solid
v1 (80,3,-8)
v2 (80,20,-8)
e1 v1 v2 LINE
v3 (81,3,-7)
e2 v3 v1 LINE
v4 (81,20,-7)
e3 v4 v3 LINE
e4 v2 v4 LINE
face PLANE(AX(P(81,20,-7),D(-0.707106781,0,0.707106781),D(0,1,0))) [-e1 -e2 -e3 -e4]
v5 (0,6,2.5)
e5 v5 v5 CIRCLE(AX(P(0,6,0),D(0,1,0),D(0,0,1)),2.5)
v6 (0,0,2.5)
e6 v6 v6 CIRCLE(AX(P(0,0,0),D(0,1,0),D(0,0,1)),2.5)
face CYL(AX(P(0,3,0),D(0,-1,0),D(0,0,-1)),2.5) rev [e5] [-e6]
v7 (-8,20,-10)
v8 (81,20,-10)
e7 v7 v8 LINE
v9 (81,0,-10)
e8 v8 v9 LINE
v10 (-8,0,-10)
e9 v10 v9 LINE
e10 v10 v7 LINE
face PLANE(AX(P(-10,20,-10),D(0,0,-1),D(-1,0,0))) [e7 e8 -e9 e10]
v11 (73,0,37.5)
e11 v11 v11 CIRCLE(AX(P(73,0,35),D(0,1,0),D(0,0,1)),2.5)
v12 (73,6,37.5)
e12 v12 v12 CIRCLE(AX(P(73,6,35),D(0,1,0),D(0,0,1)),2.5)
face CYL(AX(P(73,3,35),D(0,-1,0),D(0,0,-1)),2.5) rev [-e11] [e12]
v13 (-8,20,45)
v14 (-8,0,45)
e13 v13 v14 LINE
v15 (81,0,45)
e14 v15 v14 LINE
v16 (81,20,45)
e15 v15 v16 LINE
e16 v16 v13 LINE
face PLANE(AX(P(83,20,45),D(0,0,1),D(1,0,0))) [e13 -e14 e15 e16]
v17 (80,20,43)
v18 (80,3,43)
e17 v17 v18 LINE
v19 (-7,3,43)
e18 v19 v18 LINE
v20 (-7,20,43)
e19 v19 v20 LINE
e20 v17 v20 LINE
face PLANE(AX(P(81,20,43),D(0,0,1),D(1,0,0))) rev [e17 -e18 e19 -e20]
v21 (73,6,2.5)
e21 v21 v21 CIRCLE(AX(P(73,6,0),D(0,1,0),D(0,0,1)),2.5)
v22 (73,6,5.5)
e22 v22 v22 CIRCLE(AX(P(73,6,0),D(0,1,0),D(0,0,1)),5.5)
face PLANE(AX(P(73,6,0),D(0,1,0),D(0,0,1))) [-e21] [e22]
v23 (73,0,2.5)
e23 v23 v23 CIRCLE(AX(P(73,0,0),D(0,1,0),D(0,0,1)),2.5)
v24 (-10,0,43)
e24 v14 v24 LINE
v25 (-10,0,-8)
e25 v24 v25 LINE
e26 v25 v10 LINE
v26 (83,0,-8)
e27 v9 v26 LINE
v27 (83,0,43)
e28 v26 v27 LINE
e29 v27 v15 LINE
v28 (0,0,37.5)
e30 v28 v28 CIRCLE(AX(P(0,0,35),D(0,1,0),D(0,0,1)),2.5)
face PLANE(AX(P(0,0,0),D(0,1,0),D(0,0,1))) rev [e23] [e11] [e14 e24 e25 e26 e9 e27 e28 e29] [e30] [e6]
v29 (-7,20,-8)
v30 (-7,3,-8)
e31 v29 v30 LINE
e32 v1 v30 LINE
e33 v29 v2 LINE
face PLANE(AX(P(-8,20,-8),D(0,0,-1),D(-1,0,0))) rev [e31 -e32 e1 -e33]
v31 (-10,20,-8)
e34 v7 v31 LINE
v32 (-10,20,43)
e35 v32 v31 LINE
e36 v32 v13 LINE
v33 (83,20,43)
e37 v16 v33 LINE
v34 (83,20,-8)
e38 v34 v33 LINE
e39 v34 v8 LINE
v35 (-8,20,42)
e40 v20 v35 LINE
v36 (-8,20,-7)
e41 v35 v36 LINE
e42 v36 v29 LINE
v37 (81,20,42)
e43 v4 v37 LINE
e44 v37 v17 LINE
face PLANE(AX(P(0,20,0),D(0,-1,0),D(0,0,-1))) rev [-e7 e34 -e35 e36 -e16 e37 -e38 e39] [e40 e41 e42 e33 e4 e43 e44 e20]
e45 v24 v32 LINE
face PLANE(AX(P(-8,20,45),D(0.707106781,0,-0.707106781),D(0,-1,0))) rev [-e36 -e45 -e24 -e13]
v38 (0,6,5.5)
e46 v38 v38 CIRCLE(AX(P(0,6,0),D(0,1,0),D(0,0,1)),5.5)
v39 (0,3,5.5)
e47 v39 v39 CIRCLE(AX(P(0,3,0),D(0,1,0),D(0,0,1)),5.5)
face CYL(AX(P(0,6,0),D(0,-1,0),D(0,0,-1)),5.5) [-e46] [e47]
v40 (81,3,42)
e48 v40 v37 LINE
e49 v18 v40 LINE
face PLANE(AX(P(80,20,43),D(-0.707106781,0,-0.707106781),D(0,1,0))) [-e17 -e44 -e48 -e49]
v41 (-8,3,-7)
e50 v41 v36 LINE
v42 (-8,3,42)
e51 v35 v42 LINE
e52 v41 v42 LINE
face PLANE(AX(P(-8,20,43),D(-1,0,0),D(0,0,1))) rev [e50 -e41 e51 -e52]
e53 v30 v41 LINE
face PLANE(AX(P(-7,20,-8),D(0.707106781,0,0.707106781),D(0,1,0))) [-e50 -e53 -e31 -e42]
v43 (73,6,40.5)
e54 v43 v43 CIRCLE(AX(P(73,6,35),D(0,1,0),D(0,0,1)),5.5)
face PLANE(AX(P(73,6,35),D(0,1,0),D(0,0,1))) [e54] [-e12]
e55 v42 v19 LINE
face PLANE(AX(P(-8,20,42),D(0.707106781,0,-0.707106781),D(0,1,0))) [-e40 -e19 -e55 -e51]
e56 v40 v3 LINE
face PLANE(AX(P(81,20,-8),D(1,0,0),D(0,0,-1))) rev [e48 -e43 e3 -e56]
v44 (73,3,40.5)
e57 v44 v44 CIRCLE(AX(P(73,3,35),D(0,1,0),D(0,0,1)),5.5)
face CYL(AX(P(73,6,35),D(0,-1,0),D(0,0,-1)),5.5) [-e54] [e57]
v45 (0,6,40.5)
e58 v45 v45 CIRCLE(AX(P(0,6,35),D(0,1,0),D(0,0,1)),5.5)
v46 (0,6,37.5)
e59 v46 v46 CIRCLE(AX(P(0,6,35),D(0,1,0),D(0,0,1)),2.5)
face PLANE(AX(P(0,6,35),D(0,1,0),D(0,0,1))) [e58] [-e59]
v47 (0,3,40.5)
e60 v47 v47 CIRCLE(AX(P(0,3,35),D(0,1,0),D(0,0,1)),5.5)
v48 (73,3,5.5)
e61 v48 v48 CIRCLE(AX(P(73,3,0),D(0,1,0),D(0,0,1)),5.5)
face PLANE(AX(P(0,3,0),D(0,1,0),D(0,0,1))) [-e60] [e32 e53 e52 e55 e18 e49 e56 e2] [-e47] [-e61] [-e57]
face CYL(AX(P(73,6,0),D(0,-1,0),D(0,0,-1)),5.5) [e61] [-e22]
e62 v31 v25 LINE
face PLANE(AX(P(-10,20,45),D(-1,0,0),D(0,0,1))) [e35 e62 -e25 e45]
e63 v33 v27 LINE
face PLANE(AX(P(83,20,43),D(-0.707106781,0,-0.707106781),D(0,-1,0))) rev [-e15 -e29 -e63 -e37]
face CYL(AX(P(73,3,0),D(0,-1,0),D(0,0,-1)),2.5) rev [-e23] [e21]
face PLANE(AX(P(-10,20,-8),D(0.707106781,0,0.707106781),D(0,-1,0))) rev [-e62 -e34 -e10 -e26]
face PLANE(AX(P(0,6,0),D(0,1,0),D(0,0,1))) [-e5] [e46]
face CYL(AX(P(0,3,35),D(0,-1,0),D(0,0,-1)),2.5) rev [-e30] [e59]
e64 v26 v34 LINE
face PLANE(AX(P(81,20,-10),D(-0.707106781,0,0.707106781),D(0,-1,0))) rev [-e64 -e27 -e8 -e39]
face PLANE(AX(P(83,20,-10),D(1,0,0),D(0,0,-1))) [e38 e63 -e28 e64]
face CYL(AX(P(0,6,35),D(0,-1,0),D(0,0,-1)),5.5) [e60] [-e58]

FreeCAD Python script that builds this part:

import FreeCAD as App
import Part
import Sketcher


def edges_at(feature, points):
    """Names of the edges that pass closest to the given points."""
    edges = feature.Shape.Edges
    near = lambda p: min(range(len(edges)), key=lambda i: edges[i].distToShape(Part.Vertex(*p))[0])
    return sorted({f"Edge{near(p) + 1}" for p in points})


def add_polygon(sketch, points):
    """Adds a closed chain of lines whose ends are joined by coincident constraints."""
    first, n = sketch.GeometryCount, len(points)
    for a, b in zip(points, points[1:] + points[:1]):
        sketch.addGeometry(Part.LineSegment(App.Vector(*a, 0), App.Vector(*b, 0)), False)
    for i in range(n):
        sketch.addConstraint(Sketcher.Constraint("Coincident", first + i, 2, first + (i + 1) % n, 1))

doc = App.newDocument("Part")
body = doc.addObject("PartDesign::Body", "Body")

# Sketch on XZ plane
sketch1 = body.newObject("Sketcher::SketchObject", "Sketch")
sketch1.AttachmentSupport = (doc.getObject("XZ_Plane"), [""])
sketch1.MapMode = "FlatFace"
add_polygon(sketch1, [(-8, -8), (-8, 43), (81, 43), (81, -8)])  # lines 0-3
sketch1.addGeometry(Part.Circle(App.Vector(0, 35, 0), App.Vector(0, 0, 1), 2.5), False)  # 4
sketch1.addGeometry(Part.Circle(App.Vector(73, 35, 0), App.Vector(0, 0, 1), 2.5), False)  # 5
sketch1.addGeometry(Part.Circle(App.Vector(0, 0, 0), App.Vector(0, 0, 1), 2.5), False)  # 6
sketch1.addGeometry(Part.Circle(App.Vector(73, 0, 0), App.Vector(0, 0, 1), 2.5), False)  # 7
sketch1.addConstraint([
    Sketcher.Constraint("Vertical", 0),
    Sketcher.Constraint("Horizontal", 1),
    Sketcher.Constraint("Vertical", 2),
    Sketcher.Constraint("Horizontal", 3),
    Sketcher.Constraint("Coincident", 6, 3, -1, 1),
    Sketcher.Constraint("Equal", 4, 5),
    Sketcher.Constraint("Equal", 5, 6),
    Sketcher.Constraint("Equal", 6, 7),
    Sketcher.Constraint("PointOnObject", 4, 3, -2),
    Sketcher.Constraint("PointOnObject", 7, 3, -1),
    Sketcher.Constraint("Horizontal", 4, 3, 5, 3),
    Sketcher.Constraint("Vertical", 5, 3, 7, 3),
    Sketcher.Constraint("Diameter", 4, 5.0),
    Sketcher.Constraint("DistanceX", 1, 1, 1, 2, 89.0),
    Sketcher.Constraint("DistanceY", 0, 1, 0, 2, 51.0),
    Sketcher.Constraint("DistanceY", -1, 1, 4, 3, 35.0),
    Sketcher.Constraint("DistanceX", -1, 1, 5, 3, 73.0),
    Sketcher.Constraint("DistanceX", 0, 2, -1, 1, 8.0),
    Sketcher.Constraint("DistanceY", -1, 1, 0, 2, 43.0),
])
pad1 = body.newObject("PartDesign::Pad", "Pad")
pad1.Profile = sketch1
pad1.Length = 3
pad1.Reversed = True

# Sketch on XZ plane
sketch2 = body.newObject("Sketcher::SketchObject", "Sketch001")
sketch2.AttachmentSupport = (doc.getObject("XZ_Plane"), [""])
sketch2.MapMode = "FlatFace"
sketch2.AttachmentOffset = App.Placement(App.Vector(0, 0, -3), App.Rotation())
sketch2.addGeometry([
    Part.Circle(App.Vector(0, 0, 0), App.Vector(0, 0, 1), 5.5),  # 0
    Part.Circle(App.Vector(0, 0, 0), App.Vector(0, 0, 1), 2.5),  # 1
    Part.Circle(App.Vector(73, 0, 0), App.Vector(0, 0, 1), 5.5),  # 2
    Part.Circle(App.Vector(73, 0, 0), App.Vector(0, 0, 1), 2.5),  # 3
    Part.Circle(App.Vector(73, 35, 0), App.Vector(0, 0, 1), 5.5),  # 4
    Part.Circle(App.Vector(73, 35, 0), App.Vector(0, 0, 1), 2.5),  # 5
    Part.Circle(App.Vector(0, 35, 0), App.Vector(0, 0, 1), 5.5),  # 6
    Part.Circle(App.Vector(0, 35, 0), App.Vector(0, 0, 1), 2.5),  # 7
], False)
sketch2.addConstraint([
    Sketcher.Constraint("Coincident", 0, 3, -1, 1),
    Sketcher.Constraint("Coincident", 1, 3, -1, 1),
    Sketcher.Constraint("Coincident", 3, 3, 2, 3),
    Sketcher.Constraint("Coincident", 5, 3, 4, 3),
    Sketcher.Constraint("Coincident", 7, 3, 6, 3),
    Sketcher.Constraint("Equal", 0, 2),
    Sketcher.Constraint("Equal", 1, 3),
    Sketcher.Constraint("Equal", 2, 4),
    Sketcher.Constraint("Equal", 3, 5),
    Sketcher.Constraint("Equal", 4, 6),
    Sketcher.Constraint("Equal", 5, 7),
    Sketcher.Constraint("PointOnObject", 2, 3, -1),
    Sketcher.Constraint("PointOnObject", 6, 3, -2),
    Sketcher.Constraint("Horizontal", 5, 3, 6, 3),
    Sketcher.Constraint("Vertical", 3, 3, 4, 3),
    Sketcher.Constraint("Diameter", 0, 11.0),
    Sketcher.Constraint("Diameter", 1, 5.0),
    Sketcher.Constraint("DistanceX", -1, 1, 2, 3, 73.0),
    Sketcher.Constraint("DistanceY", -1, 1, 4, 3, 35.0),
])
pad2 = body.newObject("PartDesign::Pad", "Pad001")
pad2.Profile = sketch2
pad2.Length = 3
pad2.Reversed = True

# Sketch on XZ plane
sketch3 = body.newObject("Sketcher::SketchObject", "Sketch002")
sketch3.AttachmentSupport = (doc.getObject("XZ_Plane"), [""])
sketch3.MapMode = "FlatFace"
add_polygon(sketch3, [(-10, 45), (-10, -10), (83, -10), (83, 45)])  # lines 0-3
add_polygon(sketch3, [(81, -8), (-8, -8), (-8, 43), (81, 43)])  # lines 4-7
sketch3.addConstraint([
    Sketcher.Constraint("Vertical", 0),
    Sketcher.Constraint("Horizontal", 1),
    Sketcher.Constraint("Vertical", 2),
    Sketcher.Constraint("Horizontal", 3),
    Sketcher.Constraint("Horizontal", 4),
    Sketcher.Constraint("Vertical", 5),
    Sketcher.Constraint("Horizontal", 6),
    Sketcher.Constraint("Vertical", 7),
    Sketcher.Constraint("DistanceX", 1, 1, 1, 2, 93.0),
    Sketcher.Constraint("DistanceX", 4, 2, 4, 1, 89.0),
    Sketcher.Constraint("DistanceY", 0, 2, 0, 1, 55.0),
    Sketcher.Constraint("DistanceY", 5, 1, 5, 2, 51.0),
    Sketcher.Constraint("DistanceX", 0, 2, -1, 1, 10.0),
    Sketcher.Constraint("DistanceY", 0, 2, -1, 1, 10.0),
    Sketcher.Constraint("DistanceX", 4, 2, -1, 1, 8.0),
    Sketcher.Constraint("DistanceY", 4, 2, -1, 1, 8.0),
])
pad3 = body.newObject("PartDesign::Pad", "Pad002")
pad3.Profile = sketch3
pad3.Length = 20
pad3.Reversed = True
doc.recompute()

chamfer = body.newObject("PartDesign::Chamfer", "Chamfer")
chamfer.Base = (pad3, edges_at(pad3, [
    (-10, 10, 45),
    (83, 10, 45),
    (83, 10, -10),
    (-10, 10, -10),
]))
chamfer.Size = 2
doc.recompute()

chamfer2 = body.newObject("PartDesign::Chamfer", "Chamfer001")
chamfer2.Base = (chamfer, edges_at(chamfer, [
    (81, 11.5, 43),
    (81, 11.5, -8),
    (-8, 11.5, -8),
    (-8, 11.5, 43),
]))
chamfer2.Size = 1

doc.recompute()
